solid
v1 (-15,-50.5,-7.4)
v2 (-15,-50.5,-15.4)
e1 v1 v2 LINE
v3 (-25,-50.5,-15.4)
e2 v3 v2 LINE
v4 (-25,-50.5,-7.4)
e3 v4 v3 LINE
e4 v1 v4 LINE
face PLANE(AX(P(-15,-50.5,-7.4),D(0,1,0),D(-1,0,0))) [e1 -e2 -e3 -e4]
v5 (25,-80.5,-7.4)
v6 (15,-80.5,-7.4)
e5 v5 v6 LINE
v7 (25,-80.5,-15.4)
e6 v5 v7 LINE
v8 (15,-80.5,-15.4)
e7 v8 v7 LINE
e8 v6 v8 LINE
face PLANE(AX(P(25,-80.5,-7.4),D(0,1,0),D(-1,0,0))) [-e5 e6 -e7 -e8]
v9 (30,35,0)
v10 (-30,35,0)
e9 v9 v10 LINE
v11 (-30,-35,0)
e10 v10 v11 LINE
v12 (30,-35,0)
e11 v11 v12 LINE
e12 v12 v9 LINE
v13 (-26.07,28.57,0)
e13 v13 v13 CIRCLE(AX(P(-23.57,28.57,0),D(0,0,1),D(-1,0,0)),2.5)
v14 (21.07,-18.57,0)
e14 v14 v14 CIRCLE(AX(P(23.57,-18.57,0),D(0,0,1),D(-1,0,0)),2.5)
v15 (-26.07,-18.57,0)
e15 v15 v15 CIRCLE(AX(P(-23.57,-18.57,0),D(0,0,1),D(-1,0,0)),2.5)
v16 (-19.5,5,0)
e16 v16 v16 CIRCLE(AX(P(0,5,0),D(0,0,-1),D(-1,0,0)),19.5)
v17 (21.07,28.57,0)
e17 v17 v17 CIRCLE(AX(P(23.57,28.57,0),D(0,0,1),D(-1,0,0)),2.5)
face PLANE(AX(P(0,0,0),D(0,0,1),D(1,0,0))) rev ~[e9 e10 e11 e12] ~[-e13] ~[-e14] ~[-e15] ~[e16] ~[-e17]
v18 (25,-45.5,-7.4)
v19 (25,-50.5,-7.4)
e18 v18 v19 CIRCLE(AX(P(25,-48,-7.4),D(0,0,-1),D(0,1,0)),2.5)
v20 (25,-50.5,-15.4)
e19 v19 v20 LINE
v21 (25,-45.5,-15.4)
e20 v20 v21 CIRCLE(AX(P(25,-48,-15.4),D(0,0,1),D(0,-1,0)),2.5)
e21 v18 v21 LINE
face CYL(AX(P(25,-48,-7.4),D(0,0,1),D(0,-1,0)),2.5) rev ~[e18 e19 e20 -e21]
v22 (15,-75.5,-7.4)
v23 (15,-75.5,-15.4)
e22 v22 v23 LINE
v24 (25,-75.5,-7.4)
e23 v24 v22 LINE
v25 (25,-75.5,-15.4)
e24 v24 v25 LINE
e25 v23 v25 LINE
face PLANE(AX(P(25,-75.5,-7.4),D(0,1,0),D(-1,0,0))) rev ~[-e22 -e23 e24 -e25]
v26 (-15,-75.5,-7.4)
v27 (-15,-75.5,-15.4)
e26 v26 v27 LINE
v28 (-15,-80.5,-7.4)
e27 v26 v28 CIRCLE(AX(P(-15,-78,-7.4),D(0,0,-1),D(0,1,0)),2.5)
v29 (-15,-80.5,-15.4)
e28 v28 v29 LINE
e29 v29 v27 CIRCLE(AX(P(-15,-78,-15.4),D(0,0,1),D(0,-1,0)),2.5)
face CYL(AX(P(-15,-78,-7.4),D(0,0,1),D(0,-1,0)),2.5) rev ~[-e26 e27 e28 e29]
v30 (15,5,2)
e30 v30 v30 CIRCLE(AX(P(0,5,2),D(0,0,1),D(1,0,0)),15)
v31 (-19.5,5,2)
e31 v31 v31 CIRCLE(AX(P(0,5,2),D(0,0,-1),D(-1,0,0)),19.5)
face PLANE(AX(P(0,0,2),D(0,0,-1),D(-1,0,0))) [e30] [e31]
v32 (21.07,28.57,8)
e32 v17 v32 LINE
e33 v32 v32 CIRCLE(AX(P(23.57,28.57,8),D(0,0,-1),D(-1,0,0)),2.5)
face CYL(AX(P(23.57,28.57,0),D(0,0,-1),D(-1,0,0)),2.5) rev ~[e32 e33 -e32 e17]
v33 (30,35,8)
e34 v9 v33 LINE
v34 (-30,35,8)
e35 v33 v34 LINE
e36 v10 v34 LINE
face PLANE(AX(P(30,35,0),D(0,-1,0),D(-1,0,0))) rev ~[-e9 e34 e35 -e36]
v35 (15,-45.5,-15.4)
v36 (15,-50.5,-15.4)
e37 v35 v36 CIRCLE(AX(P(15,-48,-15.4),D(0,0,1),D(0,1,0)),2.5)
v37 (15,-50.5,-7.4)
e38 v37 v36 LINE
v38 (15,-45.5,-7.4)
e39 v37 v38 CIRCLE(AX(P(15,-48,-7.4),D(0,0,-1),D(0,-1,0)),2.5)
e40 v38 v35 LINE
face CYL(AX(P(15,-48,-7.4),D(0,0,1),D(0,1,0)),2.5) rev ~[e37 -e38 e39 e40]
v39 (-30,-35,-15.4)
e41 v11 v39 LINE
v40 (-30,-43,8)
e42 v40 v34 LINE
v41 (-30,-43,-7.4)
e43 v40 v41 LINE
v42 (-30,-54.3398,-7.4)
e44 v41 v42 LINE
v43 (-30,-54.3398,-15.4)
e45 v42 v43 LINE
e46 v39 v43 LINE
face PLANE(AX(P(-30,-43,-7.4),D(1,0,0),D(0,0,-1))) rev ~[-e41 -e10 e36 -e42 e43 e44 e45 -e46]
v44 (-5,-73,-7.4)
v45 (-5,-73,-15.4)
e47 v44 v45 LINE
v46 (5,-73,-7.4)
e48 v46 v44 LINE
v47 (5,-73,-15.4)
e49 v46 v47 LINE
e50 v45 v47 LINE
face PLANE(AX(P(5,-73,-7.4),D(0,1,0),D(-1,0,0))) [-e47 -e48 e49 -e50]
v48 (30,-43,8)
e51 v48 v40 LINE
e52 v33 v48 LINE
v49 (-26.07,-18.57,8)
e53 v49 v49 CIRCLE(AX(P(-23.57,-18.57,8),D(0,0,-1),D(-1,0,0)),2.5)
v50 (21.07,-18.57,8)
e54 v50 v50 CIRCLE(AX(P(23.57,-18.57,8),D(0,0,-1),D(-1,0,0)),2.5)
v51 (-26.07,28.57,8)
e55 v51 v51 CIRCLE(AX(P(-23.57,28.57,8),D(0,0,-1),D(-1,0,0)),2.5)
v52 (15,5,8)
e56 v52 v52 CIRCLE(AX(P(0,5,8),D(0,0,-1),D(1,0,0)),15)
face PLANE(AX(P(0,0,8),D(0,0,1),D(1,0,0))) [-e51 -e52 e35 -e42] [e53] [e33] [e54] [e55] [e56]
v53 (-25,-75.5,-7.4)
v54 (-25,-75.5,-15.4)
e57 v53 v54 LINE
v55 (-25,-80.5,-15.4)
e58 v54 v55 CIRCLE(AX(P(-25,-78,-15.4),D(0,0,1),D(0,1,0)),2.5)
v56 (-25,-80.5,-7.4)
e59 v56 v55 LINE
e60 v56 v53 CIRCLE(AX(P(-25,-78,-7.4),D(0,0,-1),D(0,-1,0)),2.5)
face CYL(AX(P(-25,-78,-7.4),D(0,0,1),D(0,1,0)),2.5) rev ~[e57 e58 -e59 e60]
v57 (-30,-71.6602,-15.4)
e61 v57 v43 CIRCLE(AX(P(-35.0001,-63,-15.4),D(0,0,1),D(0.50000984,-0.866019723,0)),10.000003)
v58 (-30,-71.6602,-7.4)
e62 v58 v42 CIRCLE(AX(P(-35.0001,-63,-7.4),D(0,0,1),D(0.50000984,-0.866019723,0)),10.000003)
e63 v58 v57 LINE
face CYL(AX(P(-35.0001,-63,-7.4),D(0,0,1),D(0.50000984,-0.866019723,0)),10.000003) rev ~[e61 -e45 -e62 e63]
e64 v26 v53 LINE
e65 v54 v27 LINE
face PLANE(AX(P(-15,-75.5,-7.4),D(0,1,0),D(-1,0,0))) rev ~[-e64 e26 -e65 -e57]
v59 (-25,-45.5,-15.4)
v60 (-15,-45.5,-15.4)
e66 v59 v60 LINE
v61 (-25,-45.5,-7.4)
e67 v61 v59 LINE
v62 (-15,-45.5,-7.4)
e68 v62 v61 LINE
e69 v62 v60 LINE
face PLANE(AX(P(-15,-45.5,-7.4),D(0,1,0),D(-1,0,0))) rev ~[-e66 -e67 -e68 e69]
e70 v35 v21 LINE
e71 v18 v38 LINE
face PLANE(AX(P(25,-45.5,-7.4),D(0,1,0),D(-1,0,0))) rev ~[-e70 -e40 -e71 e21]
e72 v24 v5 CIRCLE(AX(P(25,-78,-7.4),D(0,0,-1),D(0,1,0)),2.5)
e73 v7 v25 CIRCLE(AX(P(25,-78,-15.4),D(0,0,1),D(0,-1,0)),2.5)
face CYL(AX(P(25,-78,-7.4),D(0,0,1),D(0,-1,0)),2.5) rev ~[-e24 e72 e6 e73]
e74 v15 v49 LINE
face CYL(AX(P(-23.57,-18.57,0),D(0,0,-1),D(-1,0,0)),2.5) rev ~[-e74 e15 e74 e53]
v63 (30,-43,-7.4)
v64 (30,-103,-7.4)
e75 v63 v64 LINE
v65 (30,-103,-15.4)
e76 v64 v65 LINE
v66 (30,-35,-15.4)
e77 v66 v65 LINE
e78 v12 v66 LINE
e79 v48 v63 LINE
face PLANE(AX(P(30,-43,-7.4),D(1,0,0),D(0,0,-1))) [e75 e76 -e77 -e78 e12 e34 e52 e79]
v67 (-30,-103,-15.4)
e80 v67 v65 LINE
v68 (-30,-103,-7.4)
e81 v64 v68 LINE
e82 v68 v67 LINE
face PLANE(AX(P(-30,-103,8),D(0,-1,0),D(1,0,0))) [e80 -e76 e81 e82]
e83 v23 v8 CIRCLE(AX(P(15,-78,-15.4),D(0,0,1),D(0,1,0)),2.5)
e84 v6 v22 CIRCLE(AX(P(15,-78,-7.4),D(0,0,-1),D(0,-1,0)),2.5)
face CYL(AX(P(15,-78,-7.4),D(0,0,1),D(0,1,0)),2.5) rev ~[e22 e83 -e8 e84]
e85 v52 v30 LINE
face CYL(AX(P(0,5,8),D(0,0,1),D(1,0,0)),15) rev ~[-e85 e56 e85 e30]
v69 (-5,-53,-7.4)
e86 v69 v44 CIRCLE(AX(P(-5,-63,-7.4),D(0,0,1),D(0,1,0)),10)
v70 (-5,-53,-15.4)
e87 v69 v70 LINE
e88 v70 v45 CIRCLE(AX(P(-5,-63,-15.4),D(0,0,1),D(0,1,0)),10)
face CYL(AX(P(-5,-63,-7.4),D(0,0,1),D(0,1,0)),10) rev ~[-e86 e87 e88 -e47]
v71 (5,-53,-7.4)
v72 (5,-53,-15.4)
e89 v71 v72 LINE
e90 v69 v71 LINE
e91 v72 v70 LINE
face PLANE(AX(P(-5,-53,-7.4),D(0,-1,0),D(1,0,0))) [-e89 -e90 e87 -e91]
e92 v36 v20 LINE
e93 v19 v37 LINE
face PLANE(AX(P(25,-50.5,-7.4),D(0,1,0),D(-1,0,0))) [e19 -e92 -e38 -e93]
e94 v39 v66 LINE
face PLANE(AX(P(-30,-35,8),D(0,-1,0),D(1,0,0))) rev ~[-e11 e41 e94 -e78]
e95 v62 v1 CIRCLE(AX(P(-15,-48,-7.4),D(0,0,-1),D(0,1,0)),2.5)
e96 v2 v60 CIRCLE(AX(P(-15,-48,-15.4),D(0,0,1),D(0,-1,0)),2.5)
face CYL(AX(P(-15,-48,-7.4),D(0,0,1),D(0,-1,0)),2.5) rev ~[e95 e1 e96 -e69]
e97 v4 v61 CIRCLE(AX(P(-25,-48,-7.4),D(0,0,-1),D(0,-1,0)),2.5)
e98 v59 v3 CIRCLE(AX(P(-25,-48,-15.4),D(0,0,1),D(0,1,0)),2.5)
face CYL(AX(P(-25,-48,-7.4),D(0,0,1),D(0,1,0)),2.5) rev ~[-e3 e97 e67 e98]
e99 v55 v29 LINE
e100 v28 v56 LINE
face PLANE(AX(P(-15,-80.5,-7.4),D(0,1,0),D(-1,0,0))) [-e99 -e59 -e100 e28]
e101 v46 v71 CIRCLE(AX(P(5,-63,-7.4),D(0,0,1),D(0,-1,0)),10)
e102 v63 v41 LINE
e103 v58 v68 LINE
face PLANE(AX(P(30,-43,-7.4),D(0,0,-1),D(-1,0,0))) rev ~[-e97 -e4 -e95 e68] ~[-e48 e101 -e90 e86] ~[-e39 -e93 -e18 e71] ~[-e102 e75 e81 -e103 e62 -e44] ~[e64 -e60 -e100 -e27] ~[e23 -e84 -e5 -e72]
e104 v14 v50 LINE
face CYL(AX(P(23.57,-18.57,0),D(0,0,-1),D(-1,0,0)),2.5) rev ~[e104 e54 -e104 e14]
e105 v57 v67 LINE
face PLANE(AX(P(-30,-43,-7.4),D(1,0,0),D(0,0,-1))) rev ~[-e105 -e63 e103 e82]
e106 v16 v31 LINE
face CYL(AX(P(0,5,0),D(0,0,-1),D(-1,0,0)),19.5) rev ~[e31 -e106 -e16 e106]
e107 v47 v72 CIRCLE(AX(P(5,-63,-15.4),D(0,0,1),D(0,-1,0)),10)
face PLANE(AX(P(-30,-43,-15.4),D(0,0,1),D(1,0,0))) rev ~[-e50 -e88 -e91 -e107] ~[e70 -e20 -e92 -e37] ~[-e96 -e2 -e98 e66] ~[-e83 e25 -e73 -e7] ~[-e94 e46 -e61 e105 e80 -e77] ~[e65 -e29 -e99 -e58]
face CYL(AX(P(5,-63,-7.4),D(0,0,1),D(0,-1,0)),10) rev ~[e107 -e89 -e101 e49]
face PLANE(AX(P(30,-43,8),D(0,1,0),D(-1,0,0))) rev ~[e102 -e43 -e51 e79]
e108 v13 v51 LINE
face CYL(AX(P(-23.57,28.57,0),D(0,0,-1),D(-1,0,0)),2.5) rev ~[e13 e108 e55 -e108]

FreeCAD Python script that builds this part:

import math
import FreeCAD as App
import Part
import Sketcher
from FreeCAD import Vector
Q = App.Units.Quantity

doc = App.newDocument("Part")
body = doc.addObject("PartDesign::Body", "Body")

# Sketch on XY plane
sketch1 = body.newObject("Sketcher::SketchObject", "Sketch")
sketch1.AttachmentSupport = (doc.getObject("XY_Plane"), [""])
sketch1.MapMode = "FlatFace"
sketch1.addGeometry(Part.LineSegment(Vector(-30, 35, 0), Vector(-30, -35, 0)), False)
sketch1.addGeometry(Part.LineSegment(Vector(-30, -35, 0), Vector(30, -35, 0)), False)
sketch1.addGeometry(Part.LineSegment(Vector(30, -35, 0), Vector(30, 35, 0)), False)
sketch1.addGeometry(Part.LineSegment(Vector(30, 35, 0), Vector(-30, 35, 0)), False)
sketch1.addConstraint(Sketcher.Constraint("Coincident", 0, 2, 1, 1))
sketch1.addConstraint(Sketcher.Constraint("Coincident", 1, 2, 2, 1))
sketch1.addConstraint(Sketcher.Constraint("Coincident", 2, 2, 3, 1))
sketch1.addConstraint(Sketcher.Constraint("Coincident", 3, 2, 0, 1))
sketch1.addConstraint(Sketcher.Constraint("Vertical", 0))
sketch1.addConstraint(Sketcher.Constraint("Horizontal", 1))
sketch1.addConstraint(Sketcher.Constraint("Vertical", 2))
sketch1.addConstraint(Sketcher.Constraint("Horizontal", 3))
sketch1.addConstraint(Sketcher.Constraint("Symmetric", 0, 2, 2, 2, -1, 1))
sketch1.addConstraint(Sketcher.Constraint("DistanceX", 1, 1, 1, 2, Q("60 mm")))
sketch1.addConstraint(Sketcher.Constraint("DistanceY", 0, 2, 0, 1, Q("70 mm")))
pad1 = body.newObject("PartDesign::Pad", "Pad")
pad1.Profile = sketch1
pad1.Length = 8

# Sketch on XY plane
sketch2 = body.newObject("Sketcher::SketchObject", "Sketch001")
sketch2.AttachmentSupport = (doc.getObject("XY_Plane"), [""])
sketch2.MapMode = "FlatFace"
sketch2.addGeometry(Part.Circle(Vector(-23.6, 28.6, 0), Vector(0, 0, 1), 2.5), False)
sketch2.addGeometry(Part.Circle(Vector(-23.6, -18.6, 0), Vector(0, 0, 1), 2.5), False)
sketch2.addGeometry(Part.Circle(Vector(23.6, 28.6, 0), Vector(0, 0, 1), 2.5), False)
sketch2.addGeometry(Part.Circle(Vector(23.6, -18.6, 0), Vector(0, 0, 1), 2.5), False)
sketch2.addConstraint(Sketcher.Constraint("Equal", 0, 1))
sketch2.addConstraint(Sketcher.Constraint("Equal", 1, 2))
sketch2.addConstraint(Sketcher.Constraint("Equal", 2, 3))
sketch2.addConstraint(Sketcher.Constraint("Symmetric", 0, 3, 2, 3, -2))
sketch2.addConstraint(Sketcher.Constraint("Symmetric", 1, 3, 3, 3, -2))
sketch2.addConstraint(Sketcher.Constraint("Vertical", 0, 3, 1, 3))
sketch2.addConstraint(Sketcher.Constraint("Diameter", 0, Q("5 mm")))
sketch2.addConstraint(Sketcher.Constraint("DistanceY", 1, 3, 0, 3, Q("47.14 mm")))
sketch2.addConstraint(Sketcher.Constraint("DistanceX", 0, 3, 2, 3, Q("47.14 mm")))
sketch2.addConstraint(Sketcher.Constraint("DistanceY", -1, 1, 0, 3, Q("28.57 mm")))
pocket1 = body.newObject("PartDesign::Pocket", "Pocket")
pocket1.Profile = sketch2
pocket1.Type = "UpToFirst"
pocket1.Reversed = True

# Sketch on XY plane
sketch3 = body.newObject("Sketcher::SketchObject", "Sketch002")
sketch3.AttachmentSupport = (doc.getObject("XY_Plane"), [""])
sketch3.MapMode = "FlatFace"
sketch3.AttachmentOffset = App.Placement(Vector(0, 0, 8), App.Rotation())
sketch3.addGeometry(Part.LineSegment(Vector(30, -35, 0), Vector(-30, -35, 0)), False)
sketch3.addGeometry(Part.LineSegment(Vector(-30, -35, 0), Vector(-30, -43, 0)), False)
sketch3.addGeometry(Part.LineSegment(Vector(-30, -43, 0), Vector(30, -43, 0)), False)
sketch3.addGeometry(Part.LineSegment(Vector(30, -43, 0), Vector(30, -35, 0)), False)
sketch3.addConstraint(Sketcher.Constraint("Coincident", 0, 2, 1, 1))
sketch3.addConstraint(Sketcher.Constraint("Coincident", 1, 2, 2, 1))
sketch3.addConstraint(Sketcher.Constraint("Coincident", 2, 2, 3, 1))
sketch3.addConstraint(Sketcher.Constraint("Coincident", 3, 2, 0, 1))
sketch3.addConstraint(Sketcher.Constraint("Horizontal", 0))
sketch3.addConstraint(Sketcher.Constraint("Vertical", 1))
sketch3.addConstraint(Sketcher.Constraint("Horizontal", 2))
sketch3.addConstraint(Sketcher.Constraint("Vertical", 3))
sketch3.addConstraint(Sketcher.Constraint("DistanceY", 1, 2, 1, 1, Q("8 mm")))
sketch3.addConstraint(Sketcher.Constraint("DistanceX", 0, 2, 0, 1, Q("60 mm")))
sketch3.addConstraint(Sketcher.Constraint("DistanceX", 0, 2, -1, 1, Q("30 mm")))
sketch3.addConstraint(Sketcher.Constraint("DistanceY", 0, 2, -1, 1, Q("35 mm")))
pad2 = body.newObject("PartDesign::Pad", "Pad001")
pad2.Profile = sketch3
pad2.Length = 43.4
pad2.Reversed = True

# Sketch on XY plane
sketch4 = body.newObject("Sketcher::SketchObject", "Sketch003")
sketch4.AttachmentSupport = (doc.getObject("XY_Plane"), [""])
sketch4.MapMode = "FlatFace"
sketch4.AttachmentOffset = App.Placement(Vector(0, 0, 8), App.Rotation())
sketch4.addGeometry(Part.Circle(Vector(0, 5, 0), Vector(0, 0, 1), 15), False)
sketch4.addConstraint(Sketcher.Constraint("PointOnObject", 0, 3, -2))
sketch4.addConstraint(Sketcher.Constraint("Diameter", 0, Q("30 mm")))
sketch4.addConstraint(Sketcher.Constraint("DistanceY", -1, 1, 0, 3, Q("5 mm")))
pocket2 = body.newObject("PartDesign::Pocket", "Pocket001")
pocket2.Profile = sketch4
pocket2.Type = "UpToFirst"

# Sketch on XY plane
sketch5 = body.newObject("Sketcher::SketchObject", "Sketch004")
sketch5.AttachmentSupport = (doc.getObject("XY_Plane"), [""])
sketch5.MapMode = "FlatFace"
sketch5.addGeometry(Part.Circle(Vector(0, 5, 0), Vector(0, 0, 1), 20), False)
sketch5.addGeometry(Part.Circle(Vector(0, 5, 0), Vector(0, 0, 1), 15), False)
sketch5.addConstraint(Sketcher.Constraint("Coincident", 1, 3, 0, 3))
sketch5.addConstraint(Sketcher.Constraint("PointOnObject", 0, 3, -2))
sketch5.addConstraint(Sketcher.Constraint("Diameter", 0, Q("39 mm")))
sketch5.addConstraint(Sketcher.Constraint("Diameter", 1, Q("30 mm")))
sketch5.addConstraint(Sketcher.Constraint("DistanceY", -1, 1, 0, 3, Q("5 mm")))
pocket3 = body.newObject("PartDesign::Pocket", "Pocket002")
pocket3.Profile = sketch5
pocket3.Length = 2
pocket3.Reversed = True

# Sketch on XY plane
sketch6 = body.newObject("Sketcher::SketchObject", "Sketch005")
sketch6.AttachmentSupport = (doc.getObject("XY_Plane"), [""])
sketch6.MapMode = "FlatFace"
sketch6.AttachmentOffset = App.Placement(Vector(0, 0, -35.4), App.Rotation())
sketch6.addGeometry(Part.LineSegment(Vector(-30, -43, 0), Vector(-30, -35, 0)), False)
sketch6.addGeometry(Part.LineSegment(Vector(-30, -35, 0), Vector(30, -35, 0)), False)
sketch6.addGeometry(Part.LineSegment(Vector(30, -35, 0), Vector(30, -43, 0)), False)
sketch6.addGeometry(Part.LineSegment(Vector(30, -43, 0), Vector(-30, -43, 0)), False)
sketch6.addConstraint(Sketcher.Constraint("Coincident", 0, 2, 1, 1))
sketch6.addConstraint(Sketcher.Constraint("Coincident", 1, 2, 2, 1))
sketch6.addConstraint(Sketcher.Constraint("Coincident", 2, 2, 3, 1))
sketch6.addConstraint(Sketcher.Constraint("Coincident", 3, 2, 0, 1))
sketch6.addConstraint(Sketcher.Constraint("Vertical", 0))
sketch6.addConstraint(Sketcher.Constraint("Horizontal", 1))
sketch6.addConstraint(Sketcher.Constraint("Vertical", 2))
sketch6.addConstraint(Sketcher.Constraint("Horizontal", 3))
sketch6.addConstraint(Sketcher.Constraint("DistanceX", 1, 1, 1, 2, Q("60 mm")))
sketch6.addConstraint(Sketcher.Constraint("DistanceY", 0, 1, 0, 2, Q("8 mm")))
sketch6.addConstraint(Sketcher.Constraint("DistanceX", 0, 2, -1, 1, Q("30 mm")))
sketch6.addConstraint(Sketcher.Constraint("DistanceY", 0, 2, -1, 1, Q("35 mm")))
pocket4 = body.newObject("PartDesign::Pocket", "Pocket003")
pocket4.Profile = sketch6
pocket4.Length = 20
pocket4.Reversed = True

# Sketch on XZ plane
sketch7 = body.newObject("Sketcher::SketchObject", "Sketch006")
sketch7.AttachmentSupport = (doc.getObject("XZ_Plane"), [""])
sketch7.MapMode = "FlatFace"
sketch7.AttachmentOffset = App.Placement(Vector(0, 0, 43), App.Rotation())
sketch7.addGeometry(Part.LineSegment(Vector(-30, -7, 0), Vector(-30, -15, 0)), False)
sketch7.addGeometry(Part.LineSegment(Vector(-30, -15, 0), Vector(30, -15, 0)), False)
sketch7.addGeometry(Part.LineSegment(Vector(30, -15, 0), Vector(30, -7, 0)), False)
sketch7.addGeometry(Part.LineSegment(Vector(30, -7, 0), Vector(-30, -7, 0)), False)
sketch7.addConstraint(Sketcher.Constraint("Coincident", 0, 2, 1, 1))
sketch7.addConstraint(Sketcher.Constraint("Coincident", 1, 2, 2, 1))
sketch7.addConstraint(Sketcher.Constraint("Coincident", 2, 2, 3, 1))
sketch7.addConstraint(Sketcher.Constraint("Coincident", 3, 2, 0, 1))
sketch7.addConstraint(Sketcher.Constraint("Vertical", 0))
sketch7.addConstraint(Sketcher.Constraint("Horizontal", 1))
sketch7.addConstraint(Sketcher.Constraint("Vertical", 2))
sketch7.addConstraint(Sketcher.Constraint("Horizontal", 3))
sketch7.addConstraint(Sketcher.Constraint("DistanceY", 0, 2, 0, 1, Q("8 mm")))
sketch7.addConstraint(Sketcher.Constraint("DistanceX", 1, 1, 1, 2, Q("60 mm")))
sketch7.addConstraint(Sketcher.Constraint("DistanceX", 0, 2, -1, 1, Q("30 mm")))
sketch7.addConstraint(Sketcher.Constraint("DistanceY", 0, 2, -1, 1, Q("15.4 mm")))
pad3 = body.newObject("PartDesign::Pad", "Pad002")
pad3.Profile = sketch7
pad3.Length = 60

# Sketch on XY plane
sketch8 = body.newObject("Sketcher::SketchObject", "Sketch007")
sketch8.AttachmentSupport = (doc.getObject("XY_Plane"), [""])
sketch8.MapMode = "FlatFace"
sketch8.AttachmentOffset = App.Placement(Vector(0, 0, -7.4), App.Rotation())
sketch8.addGeometry(Part.LineSegment(Vector(-5, -73, 0), Vector(5, -73, 0)), False)
sketch8.addGeometry(Part.ArcOfCircle(Part.Circle(Vector(5, -63, 0), Vector(0, 0, 1), 10), math.radians(-90), math.radians(90)), False)
sketch8.addGeometry(Part.LineSegment(Vector(5, -53, 0), Vector(-5, -53, 0)), False)
sketch8.addGeometry(Part.ArcOfCircle(Part.Circle(Vector(-5, -63, 0), Vector(0, 0, 1), 10), math.radians(90), math.radians(270)), False)
sketch8.addConstraint(Sketcher.Constraint("Tangent", 0, 2, 1, 1))
sketch8.addConstraint(Sketcher.Constraint("Tangent", 1, 2, 2, 1))
sketch8.addConstraint(Sketcher.Constraint("Tangent", 2, 2, 3, 1))
sketch8.addConstraint(Sketcher.Constraint("Tangent", 3, 2, 0, 1))
sketch8.addConstraint(Sketcher.Constraint("Horizontal", 0))
sketch8.addConstraint(Sketcher.Constraint("Horizontal", 2))
sketch8.addConstraint(Sketcher.Constraint("Radius", 1, Q("10 mm")))
sketch8.addConstraint(Sketcher.Constraint("DistanceX", 0, 1, 0, 2, Q("10 mm")))
sketch8.addConstraint(Sketcher.Constraint("DistanceX", -1, 1, 1, 3, Q("5 mm")))
sketch8.addConstraint(Sketcher.Constraint("DistanceY", 1, 3, -1, 1, Q("63 mm")))
pocket5 = body.newObject("PartDesign::Pocket", "Pocket004")
pocket5.Profile = sketch8
pocket5.Type = "UpToFirst"

# Sketch on XY plane
sketch9 = body.newObject("Sketcher::SketchObject", "Sketch008")
sketch9.AttachmentSupport = (doc.getObject("XY_Plane"), [""])
sketch9.MapMode = "FlatFace"
sketch9.AttachmentOffset = App.Placement(Vector(0, 0, -7.4), App.Rotation())
sketch9.addGeometry(Part.ArcOfCircle(Part.Circle(Vector(15, -78, 0), Vector(0, 0, 1), 2.5), math.radians(90), math.radians(270)), False)
sketch9.addGeometry(Part.LineSegment(Vector(15, -80.5, 0), Vector(25, -80.5, 0)), False)
sketch9.addGeometry(Part.ArcOfCircle(Part.Circle(Vector(25, -78, 0), Vector(0, 0, 1), 2.5), math.radians(-90), math.radians(90)), False)
sketch9.addGeometry(Part.LineSegment(Vector(25, -75.5, 0), Vector(15, -75.5, 0)), False)
sketch9.addGeometry(Part.ArcOfCircle(Part.Circle(Vector(-15, -78, 0), Vector(0, 0, 1), 2.5), math.radians(-90), math.radians(90)), False)
sketch9.addGeometry(Part.LineSegment(Vector(-15, -75.5, 0), Vector(-25, -75.5, 0)), False)
sketch9.addGeometry(Part.ArcOfCircle(Part.Circle(Vector(-25, -78, 0), Vector(0, 0, 1), 2.5), math.radians(90), math.radians(270)), False)
sketch9.addGeometry(Part.LineSegment(Vector(-25, -80.5, 0), Vector(-15, -80.5, 0)), False)
sketch9.addGeometry(Part.ArcOfCircle(Part.Circle(Vector(25, -48, 0), Vector(0, 0, 1), 2.5), math.radians(-90), math.radians(90)), False)
sketch9.addGeometry(Part.LineSegment(Vector(25, -45.5, 0), Vector(15, -45.5, 0)), False)
sketch9.addGeometry(Part.ArcOfCircle(Part.Circle(Vector(15, -48, 0), Vector(0, 0, 1), 2.5), math.radians(90), math.radians(270)), False)
sketch9.addGeometry(Part.LineSegment(Vector(15, -50.5, 0), Vector(25, -50.5, 0)), False)
sketch9.addGeometry(Part.ArcOfCircle(Part.Circle(Vector(-25, -48, 0), Vector(0, 0, 1), 2.5), math.radians(90), math.radians(270)), False)
sketch9.addGeometry(Part.LineSegment(Vector(-25, -50.5, 0), Vector(-15, -50.5, 0)), False)
sketch9.addGeometry(Part.ArcOfCircle(Part.Circle(Vector(-15, -48, 0), Vector(0, 0, 1), 2.5), math.radians(-90), math.radians(90)), False)
sketch9.addGeometry(Part.LineSegment(Vector(-15, -45.5, 0), Vector(-25, -45.5, 0)), False)
sketch9.addConstraint(Sketcher.Constraint("Tangent", 0, 2, 1, 1))
sketch9.addConstraint(Sketcher.Constraint("Tangent", 1, 2, 2, 1))
sketch9.addConstraint(Sketcher.Constraint("Tangent", 2, 2, 3, 1))
sketch9.addConstraint(Sketcher.Constraint("Tangent", 3, 2, 0, 1))
sketch9.addConstraint(Sketcher.Constraint("Tangent", 4, 2, 5, 1))
sketch9.addConstraint(Sketcher.Constraint("Tangent", 5, 2, 6, 1))
sketch9.addConstraint(Sketcher.Constraint("Tangent", 6, 2, 7, 1))
sketch9.addConstraint(Sketcher.Constraint("Tangent", 7, 2, 4, 1))
sketch9.addConstraint(Sketcher.Constraint("Tangent", 8, 2, 9, 1))
sketch9.addConstraint(Sketcher.Constraint("Tangent", 9, 2, 10, 1))
sketch9.addConstraint(Sketcher.Constraint("Tangent", 10, 2, 11, 1))
sketch9.addConstraint(Sketcher.Constraint("Tangent", 11, 2, 8, 1))
sketch9.addConstraint(Sketcher.Constraint("Tangent", 12, 2, 13, 1))
sketch9.addConstraint(Sketcher.Constraint("Tangent", 13, 2, 14, 1))
sketch9.addConstraint(Sketcher.Constraint("Tangent", 14, 2, 15, 1))
sketch9.addConstraint(Sketcher.Constraint("Tangent", 15, 2, 12, 1))
sketch9.addConstraint(Sketcher.Constraint("Horizontal", 1))
sketch9.addConstraint(Sketcher.Constraint("Horizontal", 3))
sketch9.addConstraint(Sketcher.Constraint("Horizontal", 5))
sketch9.addConstraint(Sketcher.Constraint("Horizontal", 7))
sketch9.addConstraint(Sketcher.Constraint("Horizontal", 9))
sketch9.addConstraint(Sketcher.Constraint("Horizontal", 11))
sketch9.addConstraint(Sketcher.Constraint("Horizontal", 13))
sketch9.addConstraint(Sketcher.Constraint("Horizontal", 15))
sketch9.addConstraint(Sketcher.Constraint("Equal", 2, 4))
sketch9.addConstraint(Sketcher.Constraint("Equal", 6, 8))
sketch9.addConstraint(Sketcher.Constraint("Equal", 10, 12))
sketch9.addConstraint(Sketcher.Constraint("Symmetric", 0, 3, 4, 3, -2))
sketch9.addConstraint(Sketcher.Constraint("Symmetric", 8, 3, 12, 3, -2))
sketch9.addConstraint(Sketcher.Constraint("Vertical", 2, 3, 8, 3))
sketch9.addConstraint(Sketcher.Constraint("Vertical", 0, 3, 10, 3))
sketch9.addConstraint(Sketcher.Constraint("Vertical", 6, 3, 12, 3))
sketch9.addConstraint(Sketcher.Constraint("Vertical", 4, 3, 14, 3))
sketch9.addConstraint(Sketcher.Constraint("Radius", 0, Q("2.5 mm")))
sketch9.addConstraint(Sketcher.Constraint("DistanceX", 1, 1, 1, 2, Q("10 mm")))
sketch9.addConstraint(Sketcher.Constraint("DistanceX", -1, 1, 0, 3, Q("15 mm")))
sketch9.addConstraint(Sketcher.Constraint("DistanceY", 0, 3, -1, 1, Q("78 mm")))
sketch9.addConstraint(Sketcher.Constraint("DistanceY", 8, 3, -1, 1, Q("48 mm")))
pocket6 = body.newObject("PartDesign::Pocket", "Pocket005")
pocket6.Profile = sketch9
pocket6.Length = 8

# Sketch on XY plane
sketch10 = body.newObject("Sketcher::SketchObject", "Sketch009")
sketch10.AttachmentSupport = (doc.getObject("XY_Plane"), [""])
sketch10.MapMode = "FlatFace"
sketch10.AttachmentOffset = App.Placement(Vector(0, 0, -7.4), App.Rotation())
sketch10.addGeometry(Part.ArcOfCircle(Part.Circle(Vector(-35, -63, 0), Vector(0, 0, 1), 10), math.radians(-60), math.radians(60)), False)
sketch10.addGeometry(Part.LineSegment(Vector(-30, -54.3, 0), Vector(-33.5, -54.3, 0)), False)
sketch10.addGeometry(Part.LineSegment(Vector(-33.5, -54.3, 0), Vector(-33.5, -71.7, 0)), False)
sketch10.addGeometry(Part.LineSegment(Vector(-33.5, -71.7, 0), Vector(-30, -71.7, 0)), False)
sketch10.addConstraint(Sketcher.Constraint("Coincident", 0, 2, 1, 1))
sketch10.addConstraint(Sketcher.Constraint("Coincident", 1, 2, 2, 1))
sketch10.addConstraint(Sketcher.Constraint("Coincident", 2, 2, 3, 1))
sketch10.addConstraint(Sketcher.Constraint("Coincident", 3, 2, 0, 1))
sketch10.addConstraint(Sketcher.Constraint("Horizontal", 1))
sketch10.addConstraint(Sketcher.Constraint("Vertical", 2))
sketch10.addConstraint(Sketcher.Constraint("Horizontal", 3))
sketch10.addConstraint(Sketcher.Constraint("Vertical", 0, 2, 3, 2))
sketch10.addConstraint(Sketcher.Constraint("Radius", 0, Q("10 mm")))
sketch10.addConstraint(Sketcher.Constraint("DistanceX", 0, 3, 0, 2, Q("5 mm")))
sketch10.addConstraint(Sketcher.Constraint("DistanceX", 1, 2, 1, 1, Q("3.5 mm")))
sketch10.addConstraint(Sketcher.Constraint("DistanceX", 0, 3, -1, 1, Q("35 mm")))
sketch10.addConstraint(Sketcher.Constraint("DistanceY", 0, 3, -1, 1, Q("63 mm")))
pocket7 = body.newObject("PartDesign::Pocket", "Pocket006")
pocket7.Profile = sketch10
pocket7.Type = "UpToFirst"

doc.recompute()
